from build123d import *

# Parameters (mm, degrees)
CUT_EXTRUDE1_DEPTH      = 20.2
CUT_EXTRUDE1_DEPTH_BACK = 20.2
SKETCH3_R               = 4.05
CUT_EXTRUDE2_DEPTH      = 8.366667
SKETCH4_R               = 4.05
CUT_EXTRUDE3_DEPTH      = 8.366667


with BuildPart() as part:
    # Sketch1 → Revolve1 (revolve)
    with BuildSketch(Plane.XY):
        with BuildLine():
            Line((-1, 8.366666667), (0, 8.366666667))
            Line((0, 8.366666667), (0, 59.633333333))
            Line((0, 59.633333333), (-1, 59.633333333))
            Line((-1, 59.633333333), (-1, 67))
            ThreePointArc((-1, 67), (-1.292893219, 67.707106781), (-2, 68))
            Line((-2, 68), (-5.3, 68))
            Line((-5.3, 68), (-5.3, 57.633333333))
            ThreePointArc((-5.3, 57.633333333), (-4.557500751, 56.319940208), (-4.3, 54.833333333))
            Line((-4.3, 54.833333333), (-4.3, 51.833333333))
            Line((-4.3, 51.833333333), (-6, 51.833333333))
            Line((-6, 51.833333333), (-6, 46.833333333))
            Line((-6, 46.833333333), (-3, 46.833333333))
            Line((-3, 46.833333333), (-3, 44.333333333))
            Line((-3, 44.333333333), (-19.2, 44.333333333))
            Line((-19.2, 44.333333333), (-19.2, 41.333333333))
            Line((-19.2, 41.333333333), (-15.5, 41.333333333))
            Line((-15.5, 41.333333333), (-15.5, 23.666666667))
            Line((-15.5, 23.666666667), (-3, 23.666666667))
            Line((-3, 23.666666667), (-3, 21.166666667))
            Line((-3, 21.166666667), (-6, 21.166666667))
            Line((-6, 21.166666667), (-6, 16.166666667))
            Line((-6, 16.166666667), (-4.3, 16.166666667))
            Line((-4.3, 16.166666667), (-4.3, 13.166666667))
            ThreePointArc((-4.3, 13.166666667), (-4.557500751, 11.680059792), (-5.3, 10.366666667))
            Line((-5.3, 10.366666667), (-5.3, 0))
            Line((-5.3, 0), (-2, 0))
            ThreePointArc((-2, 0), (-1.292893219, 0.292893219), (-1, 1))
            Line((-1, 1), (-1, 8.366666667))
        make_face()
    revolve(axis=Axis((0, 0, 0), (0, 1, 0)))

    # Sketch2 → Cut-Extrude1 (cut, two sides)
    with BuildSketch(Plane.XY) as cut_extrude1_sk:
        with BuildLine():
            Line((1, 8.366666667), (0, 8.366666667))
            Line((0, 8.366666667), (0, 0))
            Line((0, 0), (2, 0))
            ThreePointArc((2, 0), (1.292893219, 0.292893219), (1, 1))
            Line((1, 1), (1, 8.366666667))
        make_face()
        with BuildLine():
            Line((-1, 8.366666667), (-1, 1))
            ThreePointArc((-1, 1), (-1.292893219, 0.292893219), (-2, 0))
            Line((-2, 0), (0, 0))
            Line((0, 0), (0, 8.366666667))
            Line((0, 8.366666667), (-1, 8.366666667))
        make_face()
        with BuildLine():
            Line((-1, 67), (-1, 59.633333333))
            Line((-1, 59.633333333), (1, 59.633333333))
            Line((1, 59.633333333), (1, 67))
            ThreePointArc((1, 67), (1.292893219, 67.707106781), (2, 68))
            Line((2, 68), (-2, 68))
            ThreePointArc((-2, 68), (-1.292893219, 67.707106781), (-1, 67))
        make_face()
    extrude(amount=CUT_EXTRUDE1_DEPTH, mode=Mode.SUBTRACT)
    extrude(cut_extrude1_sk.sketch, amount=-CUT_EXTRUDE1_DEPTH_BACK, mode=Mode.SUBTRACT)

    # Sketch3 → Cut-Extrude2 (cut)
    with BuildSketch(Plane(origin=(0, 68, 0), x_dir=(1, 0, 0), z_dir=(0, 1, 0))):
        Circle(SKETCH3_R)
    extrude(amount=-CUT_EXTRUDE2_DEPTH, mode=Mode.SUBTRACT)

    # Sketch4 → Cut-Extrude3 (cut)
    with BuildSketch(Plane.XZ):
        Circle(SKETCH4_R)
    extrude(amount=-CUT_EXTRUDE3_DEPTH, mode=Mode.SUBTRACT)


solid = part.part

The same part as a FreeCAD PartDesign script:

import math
import FreeCAD as App
import Part
import Sketcher
from FreeCAD import Vector
Q = App.Units.Quantity

doc = App.newDocument("Part")
body = doc.addObject("PartDesign::Body", "Body")

sketch1 = body.newObject("Sketcher::SketchObject", "Sketch")
sketch1.AttachmentSupport = (doc.getObject("XY_Plane"), [""])
sketch1.MapMode = "FlatFace"
sketch1.addGeometry(Part.LineSegment(Vector(-1, 8.4, 0), Vector(0, 8.4, 0)), False)
sketch1.addGeometry(Part.LineSegment(Vector(0, 8.4, 0), Vector(0, 59.6, 0)), False)
sketch1.addGeometry(Part.LineSegment(Vector(0, 59.6, 0), Vector(-1, 59.6, 0)), False)
sketch1.addGeometry(Part.LineSegment(Vector(-1, 59.6, 0), Vector(-1, 67, 0)), False)
sketch1.addGeometry(Part.ArcOfCircle(Part.Circle(Vector(-2, 67, 0), Vector(0, 0, 1), 1), math.radians(0), math.radians(90)), False)
sketch1.addGeometry(Part.LineSegment(Vector(-2, 68, 0), Vector(-5.3, 68, 0)), False)
sketch1.addGeometry(Part.LineSegment(Vector(-5.3, 68, 0), Vector(-5.3, 57.6, 0)), False)
sketch1.addGeometry(Part.ArcOfCircle(Part.Circle(Vector(-8.7, 54.8, 0), Vector(0, 0, 1), 4.4), math.radians(0), math.radians(39)), False)
sketch1.addGeometry(Part.LineSegment(Vector(-4.3, 54.8, 0), Vector(-4.3, 51.8, 0)), False)
sketch1.addGeometry(Part.LineSegment(Vector(-4.3, 51.8, 0), Vector(-6, 51.8, 0)), False)
sketch1.addGeometry(Part.LineSegment(Vector(-6, 51.8, 0), Vector(-6, 46.8, 0)), False)
sketch1.addGeometry(Part.LineSegment(Vector(-6, 46.8, 0), Vector(-3, 46.8, 0)), False)
sketch1.addGeometry(Part.LineSegment(Vector(-3, 46.8, 0), Vector(-3, 44.3, 0)), False)
sketch1.addGeometry(Part.LineSegment(Vector(-3, 44.3, 0), Vector(-19.2, 44.3, 0)), False)
sketch1.addGeometry(Part.LineSegment(Vector(-19.2, 44.3, 0), Vector(-19.2, 41.3, 0)), False)
sketch1.addGeometry(Part.LineSegment(Vector(-19.2, 41.3, 0), Vector(-15.5, 41.3, 0)), False)
sketch1.addGeometry(Part.LineSegment(Vector(-15.5, 41.3, 0), Vector(-15.5, 23.7, 0)), False)
sketch1.addGeometry(Part.LineSegment(Vector(-15.5, 23.7, 0), Vector(-3, 23.7, 0)), False)
sketch1.addGeometry(Part.LineSegment(Vector(-3, 23.7, 0), Vector(-3, 21.2, 0)), False)
sketch1.addGeometry(Part.LineSegment(Vector(-3, 21.2, 0), Vector(-6, 21.2, 0)), False)
sketch1.addGeometry(Part.LineSegment(Vector(-6, 21.2, 0), Vector(-6, 16.2, 0)), False)
sketch1.addGeometry(Part.LineSegment(Vector(-6, 16.2, 0), Vector(-4.3, 16.2, 0)), False)
sketch1.addGeometry(Part.LineSegment(Vector(-4.3, 16.2, 0), Vector(-4.3, 13.2, 0)), False)
sketch1.addGeometry(Part.ArcOfCircle(Part.Circle(Vector(-8.7, 13.2, 0), Vector(0, 0, 1), 4.4), math.radians(-39), math.radians(0)), False)
sketch1.addGeometry(Part.LineSegment(Vector(-5.3, 10.4, 0), Vector(-5.3, 0, 0)), False)
sketch1.addGeometry(Part.LineSegment(Vector(-5.3, 0, 0), Vector(-2, 0, 0)), False)
sketch1.addGeometry(Part.ArcOfCircle(Part.Circle(Vector(-2, 1, 0), Vector(0, 0, 1), 1), math.radians(-90), math.radians(0)), False)
sketch1.addGeometry(Part.LineSegment(Vector(-1, 1, 0), Vector(-1, 8.4, 0)), False)
sketch1.addConstraint(Sketcher.Constraint("Coincident", 0, 2, 1, 1))
sketch1.addConstraint(Sketcher.Constraint("Coincident", 1, 2, 2, 1))
sketch1.addConstraint(Sketcher.Constraint("Coincident", 2, 2, 3, 1))
sketch1.addConstraint(Sketcher.Constraint("Tangent", 3, 2, 4, 1))
sketch1.addConstraint(Sketcher.Constraint("Tangent", 4, 2, 5, 1))
sketch1.addConstraint(Sketcher.Constraint("Coincident", 5, 2, 6, 1))
sketch1.addConstraint(Sketcher.Constraint("Coincident", 6, 2, 7, 2))
sketch1.addConstraint(Sketcher.Constraint("Tangent", 7, 1, 8, 1))
sketch1.addConstraint(Sketcher.Constraint("Coincident", 8, 2, 9, 1))
sketch1.addConstraint(Sketcher.Constraint("Coincident", 9, 2, 10, 1))
sketch1.addConstraint(Sketcher.Constraint("Coincident", 10, 2, 11, 1))
sketch1.addConstraint(Sketcher.Constraint("Coincident", 11, 2, 12, 1))
sketch1.addConstraint(Sketcher.Constraint("Coincident", 12, 2, 13, 1))
sketch1.addConstraint(Sketcher.Constraint("Coincident", 13, 2, 14, 1))
sketch1.addConstraint(Sketcher.Constraint("Coincident", 14, 2, 15, 1))
sketch1.addConstraint(Sketcher.Constraint("Coincident", 15, 2, 16, 1))
sketch1.addConstraint(Sketcher.Constraint("Coincident", 16, 2, 17, 1))
sketch1.addConstraint(Sketcher.Constraint("Coincident", 17, 2, 18, 1))
sketch1.addConstraint(Sketcher.Constraint("Coincident", 18, 2, 19, 1))
sketch1.addConstraint(Sketcher.Constraint("Coincident", 19, 2, 20, 1))
sketch1.addConstraint(Sketcher.Constraint("Coincident", 20, 2, 21, 1))
sketch1.addConstraint(Sketcher.Constraint("Coincident", 21, 2, 22, 1))
sketch1.addConstraint(Sketcher.Constraint("Tangent", 22, 2, 23, 2))
sketch1.addConstraint(Sketcher.Constraint("Coincident", 23, 1, 24, 1))
sketch1.addConstraint(Sketcher.Constraint("Coincident", 24, 2, 25, 1))
sketch1.addConstraint(Sketcher.Constraint("Tangent", 25, 2, 26, 1))
sketch1.addConstraint(Sketcher.Constraint("Tangent", 26, 2, 27, 1))
sketch1.addConstraint(Sketcher.Constraint("Coincident", 27, 2, 0, 1))
sketch1.addConstraint(Sketcher.Constraint("Horizontal", 0))
sketch1.addConstraint(Sketcher.Constraint("Vertical", 1))
sketch1.addConstraint(Sketcher.Constraint("Horizontal", 2))
sketch1.addConstraint(Sketcher.Constraint("Vertical", 3))
sketch1.addConstraint(Sketcher.Constraint("Horizontal", 5))
sketch1.addConstraint(Sketcher.Constraint("Vertical", 6))
sketch1.addConstraint(Sketcher.Constraint("Vertical", 8))
sketch1.addConstraint(Sketcher.Constraint("Horizontal", 9))
sketch1.addConstraint(Sketcher.Constraint("Vertical", 10))
sketch1.addConstraint(Sketcher.Constraint("Horizontal", 11))
sketch1.addConstraint(Sketcher.Constraint("Vertical", 12))
sketch1.addConstraint(Sketcher.Constraint("Horizontal", 13))
sketch1.addConstraint(Sketcher.Constraint("Vertical", 14))
sketch1.addConstraint(Sketcher.Constraint("Horizontal", 15))
sketch1.addConstraint(Sketcher.Constraint("Vertical", 16))
sketch1.addConstraint(Sketcher.Constraint("Horizontal", 17))
sketch1.addConstraint(Sketcher.Constraint("Vertical", 18))
sketch1.addConstraint(Sketcher.Constraint("Horizontal", 19))
sketch1.addConstraint(Sketcher.Constraint("Vertical", 20))
sketch1.addConstraint(Sketcher.Constraint("Horizontal", 21))
sketch1.addConstraint(Sketcher.Constraint("Vertical", 22))
sketch1.addConstraint(Sketcher.Constraint("Vertical", 24))
sketch1.addConstraint(Sketcher.Constraint("Horizontal", 25))
sketch1.addConstraint(Sketcher.Constraint("Vertical", 27))
sketch1.addConstraint(Sketcher.Constraint("Equal", 7, 23))
sketch1.addConstraint(Sketcher.Constraint("Equal", 4, 26))
sketch1.addConstraint(Sketcher.Constraint("PointOnObject", 0, 2, -2))
sketch1.addConstraint(Sketcher.Constraint("PointOnObject", 24, 2, -1))
sketch1.addConstraint(Sketcher.Constraint("Vertical", 7, 3, 23, 3))
sketch1.addConstraint(Sketcher.Constraint("Vertical", 4, 3, 26, 3))
sketch1.addConstraint(Sketcher.Constraint("Vertical", 12, 2, 17, 2))
sketch1.addConstraint(Sketcher.Constraint("Vertical", 10, 2, 19, 2))
sketch1.addConstraint(Sketcher.Constraint("Vertical", 6, 2, 23, 1))
sketch1.addConstraint(Sketcher.Constraint("Equal", 19, 8))
sketch1.addConstraint(Sketcher.Constraint("Equal", 8, 14))
sketch1.addConstraint(Sketcher.Constraint("Equal", 12, 18))
sketch1.addConstraint(Sketcher.Constraint("Equal", 10, 20))
sketch1.addConstraint(Sketcher.Constraint("Equal", 14, 22))
sketch1.addConstraint(Sketcher.Constraint("Equal", 6, 24))
sketch1.addConstraint(Sketcher.Constraint("Equal", 3, 27))
sketch1.addConstraint(Sketcher.Constraint("Radius", 4, Q("1 mm")))
sketch1.addConstraint(Sketcher.Constraint("DistanceX", 0, 1, 0, 2, Q("1 mm")))
sketch1.addConstraint(Sketcher.Constraint("DistanceX", 11, 1, 11, 2, Q("3 mm")))
sketch1.addConstraint(Sketcher.Constraint("DistanceY", 10, 2, 10, 1, Q("5 mm")))
sketch1.addConstraint(Sketcher.Constraint("Radius", 7, Q("4.42 mm")))
sketch1.addConstraint(Sketcher.Constraint("DistanceX", 5, 2, 5, 1, Q("3.3 mm")))
sketch1.addConstraint(Sketcher.Constraint("DistanceX", 9, 2, 9, 1, Q("1.7 mm")))
sketch1.addConstraint(Sketcher.Constraint("DistanceX", 13, 2, 13, 1, Q("16.2 mm")))
sketch1.addConstraint(Sketcher.Constraint("DistanceX", 15, 1, 15, 2, Q("3.7 mm")))
sketch1.addConstraint(Sketcher.Constraint("DistanceY", 12, 2, 12, 1, Q("2.5 mm")))
sketch1.addConstraint(Sketcher.Constraint("DistanceY", -1, 1, 4, 3, Q("67 mm")))
sketch1.addConstraint(Sketcher.Constraint("DistanceX", 9, 2, -1, 1, Q("6 mm")))
sketch1.addConstraint(Sketcher.Constraint("DistanceY", 6, 2, 2, 2, Q("2 mm")))
sketch1.addConstraint(Sketcher.Constraint("DistanceY", 1, 1, 1, 2, Q("51.266667 mm")))
revolution = body.newObject("PartDesign::Revolution", "Revolution")
revolution.Profile = sketch1
revolution.ReferenceAxis = (sketch1, ["V_Axis"])
revolution.Angle = 360

sketch2 = body.newObject("Sketcher::SketchObject", "Sketch001")
sketch2.AttachmentSupport = (doc.getObject("XY_Plane"), [""])
sketch2.MapMode = "FlatFace"
sketch2.addGeometry(Part.LineSegment(Vector(1, 8.4, 0), Vector(-1, 8.4, 0)), False)
sketch2.addGeometry(Part.LineSegment(Vector(-1, 8.4, 0), Vector(-1, 1, 0)), False)
sketch2.addGeometry(Part.ArcOfCircle(Part.Circle(Vector(-2, 1, 0), Vector(0, 0, 1), 1), math.radians(-90), math.radians(0)), False)
sketch2.addGeometry(Part.LineSegment(Vector(-2, 0, 0), Vector(2, 0, 0)), False)
sketch2.addGeometry(Part.ArcOfCircle(Part.Circle(Vector(2, 1, 0), Vector(0, 0, 1), 1), math.radians(-180), math.radians(-90)), False)
sketch2.addGeometry(Part.LineSegment(Vector(1, 1, 0), Vector(1, 8.4, 0)), False)
sketch2.addGeometry(Part.LineSegment(Vector(-1, 67, 0), Vector(-1, 59.6, 0)), False)
sketch2.addGeometry(Part.LineSegment(Vector(-1, 59.6, 0), Vector(1, 59.6, 0)), False)
sketch2.addGeometry(Part.LineSegment(Vector(1, 59.6, 0), Vector(1, 67, 0)), False)
sketch2.addGeometry(Part.ArcOfCircle(Part.Circle(Vector(2, 67, 0), Vector(0, 0, 1), 1), math.radians(90), math.radians(180)), False)
sketch2.addGeometry(Part.LineSegment(Vector(2, 68, 0), Vector(-2, 68, 0)), False)
sketch2.addGeometry(Part.ArcOfCircle(Part.Circle(Vector(-2, 67, 0), Vector(0, 0, 1), 1), math.radians(0), math.radians(90)), False)
sketch2.addConstraint(Sketcher.Constraint("Coincident", 0, 2, 1, 1))
sketch2.addConstraint(Sketcher.Constraint("Tangent", 1, 2, 2, 2))
sketch2.addConstraint(Sketcher.Constraint("Tangent", 2, 1, 3, 1))
sketch2.addConstraint(Sketcher.Constraint("Tangent", 3, 2, 4, 2))
sketch2.addConstraint(Sketcher.Constraint("Tangent", 4, 1, 5, 1))
sketch2.addConstraint(Sketcher.Constraint("Coincident", 5, 2, 0, 1))
sketch2.addConstraint(Sketcher.Constraint("Coincident", 6, 2, 7, 1))
sketch2.addConstraint(Sketcher.Constraint("Coincident", 7, 2, 8, 1))
sketch2.addConstraint(Sketcher.Constraint("Tangent", 8, 2, 9, 2))
sketch2.addConstraint(Sketcher.Constraint("Tangent", 9, 1, 10, 1))
sketch2.addConstraint(Sketcher.Constraint("Tangent", 10, 2, 11, 2))
sketch2.addConstraint(Sketcher.Constraint("Tangent", 11, 1, 6, 1))
sketch2.addConstraint(Sketcher.Constraint("Horizontal", 0))
sketch2.addConstraint(Sketcher.Constraint("Vertical", 1))
sketch2.addConstraint(Sketcher.Constraint("Horizontal", 3))
sketch2.addConstraint(Sketcher.Constraint("Vertical", 5))
sketch2.addConstraint(Sketcher.Constraint("Vertical", 6))
sketch2.addConstraint(Sketcher.Constraint("Horizontal", 7))
sketch2.addConstraint(Sketcher.Constraint("Vertical", 8))
sketch2.addConstraint(Sketcher.Constraint("Horizontal", 10))
sketch2.addConstraint(Sketcher.Constraint("Equal", 2, 4))
sketch2.addConstraint(Sketcher.Constraint("Equal", 4, 9))
sketch2.addConstraint(Sketcher.Constraint("Equal", 9, 11))
sketch2.addConstraint(Sketcher.Constraint("Symmetric", 2, 1, 3, 2, -1, 1))
sketch2.addConstraint(Sketcher.Constraint("Vertical", 4, 3, 9, 3))
sketch2.addConstraint(Sketcher.Constraint("Vertical", 2, 3, 11, 3))
sketch2.addConstraint(Sketcher.Constraint("Equal", 5, 6))
sketch2.addConstraint(Sketcher.Constraint("Radius", 2, Q("1 mm")))
sketch2.addConstraint(Sketcher.Constraint("DistanceX", 0, 2, 0, 1, Q("2 mm")))
sketch2.addConstraint(Sketcher.Constraint("DistanceY", -1, 1, 9, 3, Q("67 mm")))
sketch2.addConstraint(Sketcher.Constraint("DistanceY", 1, 2, 1, 1, Q("7.366667 mm")))
pocket1 = body.newObject("PartDesign::Pocket", "Pocket")
pocket1.Profile = sketch2
pocket1.Type = "ThroughAll"
pocket1.Midplane = True

sketch3 = body.newObject("Sketcher::SketchObject", "Sketch002")
sketch3.AttachmentSupport = (doc.getObject("XZ_Plane"), [""])
sketch3.MapMode = "FlatFace"
sketch3.AttachmentOffset = App.Placement(Vector(0, 0, -68), App.Rotation())
sketch3.addGeometry(Part.Circle(Vector(0, 0, 0), Vector(0, 0, 1), 4), False)
sketch3.addConstraint(Sketcher.Constraint("Coincident", 0, 3, -1, 1))
sketch3.addConstraint(Sketcher.Constraint("Diameter", 0, Q("8.1 mm")))
pocket2 = body.newObject("PartDesign::Pocket", "Pocket001")
pocket2.Profile = sketch3
pocket2.Length = 8.366667
pocket2.Reversed = True

sketch4 = body.newObject("Sketcher::SketchObject", "Sketch003")
sketch4.AttachmentSupport = (doc.getObject("XZ_Plane"), [""])
sketch4.MapMode = "FlatFace"
sketch4.addGeometry(Part.Circle(Vector(0, 0, 0), Vector(0, 0, 1), 4), False)
sketch4.addConstraint(Sketcher.Constraint("Coincident", 0, 3, -1, 1))
sketch4.addConstraint(Sketcher.Constraint("Diameter", 0, Q("8.1 mm")))
pocket3 = body.newObject("PartDesign::Pocket", "Pocket002")
pocket3.Profile = sketch4
pocket3.Length = 8.366667

doc.recompute()
